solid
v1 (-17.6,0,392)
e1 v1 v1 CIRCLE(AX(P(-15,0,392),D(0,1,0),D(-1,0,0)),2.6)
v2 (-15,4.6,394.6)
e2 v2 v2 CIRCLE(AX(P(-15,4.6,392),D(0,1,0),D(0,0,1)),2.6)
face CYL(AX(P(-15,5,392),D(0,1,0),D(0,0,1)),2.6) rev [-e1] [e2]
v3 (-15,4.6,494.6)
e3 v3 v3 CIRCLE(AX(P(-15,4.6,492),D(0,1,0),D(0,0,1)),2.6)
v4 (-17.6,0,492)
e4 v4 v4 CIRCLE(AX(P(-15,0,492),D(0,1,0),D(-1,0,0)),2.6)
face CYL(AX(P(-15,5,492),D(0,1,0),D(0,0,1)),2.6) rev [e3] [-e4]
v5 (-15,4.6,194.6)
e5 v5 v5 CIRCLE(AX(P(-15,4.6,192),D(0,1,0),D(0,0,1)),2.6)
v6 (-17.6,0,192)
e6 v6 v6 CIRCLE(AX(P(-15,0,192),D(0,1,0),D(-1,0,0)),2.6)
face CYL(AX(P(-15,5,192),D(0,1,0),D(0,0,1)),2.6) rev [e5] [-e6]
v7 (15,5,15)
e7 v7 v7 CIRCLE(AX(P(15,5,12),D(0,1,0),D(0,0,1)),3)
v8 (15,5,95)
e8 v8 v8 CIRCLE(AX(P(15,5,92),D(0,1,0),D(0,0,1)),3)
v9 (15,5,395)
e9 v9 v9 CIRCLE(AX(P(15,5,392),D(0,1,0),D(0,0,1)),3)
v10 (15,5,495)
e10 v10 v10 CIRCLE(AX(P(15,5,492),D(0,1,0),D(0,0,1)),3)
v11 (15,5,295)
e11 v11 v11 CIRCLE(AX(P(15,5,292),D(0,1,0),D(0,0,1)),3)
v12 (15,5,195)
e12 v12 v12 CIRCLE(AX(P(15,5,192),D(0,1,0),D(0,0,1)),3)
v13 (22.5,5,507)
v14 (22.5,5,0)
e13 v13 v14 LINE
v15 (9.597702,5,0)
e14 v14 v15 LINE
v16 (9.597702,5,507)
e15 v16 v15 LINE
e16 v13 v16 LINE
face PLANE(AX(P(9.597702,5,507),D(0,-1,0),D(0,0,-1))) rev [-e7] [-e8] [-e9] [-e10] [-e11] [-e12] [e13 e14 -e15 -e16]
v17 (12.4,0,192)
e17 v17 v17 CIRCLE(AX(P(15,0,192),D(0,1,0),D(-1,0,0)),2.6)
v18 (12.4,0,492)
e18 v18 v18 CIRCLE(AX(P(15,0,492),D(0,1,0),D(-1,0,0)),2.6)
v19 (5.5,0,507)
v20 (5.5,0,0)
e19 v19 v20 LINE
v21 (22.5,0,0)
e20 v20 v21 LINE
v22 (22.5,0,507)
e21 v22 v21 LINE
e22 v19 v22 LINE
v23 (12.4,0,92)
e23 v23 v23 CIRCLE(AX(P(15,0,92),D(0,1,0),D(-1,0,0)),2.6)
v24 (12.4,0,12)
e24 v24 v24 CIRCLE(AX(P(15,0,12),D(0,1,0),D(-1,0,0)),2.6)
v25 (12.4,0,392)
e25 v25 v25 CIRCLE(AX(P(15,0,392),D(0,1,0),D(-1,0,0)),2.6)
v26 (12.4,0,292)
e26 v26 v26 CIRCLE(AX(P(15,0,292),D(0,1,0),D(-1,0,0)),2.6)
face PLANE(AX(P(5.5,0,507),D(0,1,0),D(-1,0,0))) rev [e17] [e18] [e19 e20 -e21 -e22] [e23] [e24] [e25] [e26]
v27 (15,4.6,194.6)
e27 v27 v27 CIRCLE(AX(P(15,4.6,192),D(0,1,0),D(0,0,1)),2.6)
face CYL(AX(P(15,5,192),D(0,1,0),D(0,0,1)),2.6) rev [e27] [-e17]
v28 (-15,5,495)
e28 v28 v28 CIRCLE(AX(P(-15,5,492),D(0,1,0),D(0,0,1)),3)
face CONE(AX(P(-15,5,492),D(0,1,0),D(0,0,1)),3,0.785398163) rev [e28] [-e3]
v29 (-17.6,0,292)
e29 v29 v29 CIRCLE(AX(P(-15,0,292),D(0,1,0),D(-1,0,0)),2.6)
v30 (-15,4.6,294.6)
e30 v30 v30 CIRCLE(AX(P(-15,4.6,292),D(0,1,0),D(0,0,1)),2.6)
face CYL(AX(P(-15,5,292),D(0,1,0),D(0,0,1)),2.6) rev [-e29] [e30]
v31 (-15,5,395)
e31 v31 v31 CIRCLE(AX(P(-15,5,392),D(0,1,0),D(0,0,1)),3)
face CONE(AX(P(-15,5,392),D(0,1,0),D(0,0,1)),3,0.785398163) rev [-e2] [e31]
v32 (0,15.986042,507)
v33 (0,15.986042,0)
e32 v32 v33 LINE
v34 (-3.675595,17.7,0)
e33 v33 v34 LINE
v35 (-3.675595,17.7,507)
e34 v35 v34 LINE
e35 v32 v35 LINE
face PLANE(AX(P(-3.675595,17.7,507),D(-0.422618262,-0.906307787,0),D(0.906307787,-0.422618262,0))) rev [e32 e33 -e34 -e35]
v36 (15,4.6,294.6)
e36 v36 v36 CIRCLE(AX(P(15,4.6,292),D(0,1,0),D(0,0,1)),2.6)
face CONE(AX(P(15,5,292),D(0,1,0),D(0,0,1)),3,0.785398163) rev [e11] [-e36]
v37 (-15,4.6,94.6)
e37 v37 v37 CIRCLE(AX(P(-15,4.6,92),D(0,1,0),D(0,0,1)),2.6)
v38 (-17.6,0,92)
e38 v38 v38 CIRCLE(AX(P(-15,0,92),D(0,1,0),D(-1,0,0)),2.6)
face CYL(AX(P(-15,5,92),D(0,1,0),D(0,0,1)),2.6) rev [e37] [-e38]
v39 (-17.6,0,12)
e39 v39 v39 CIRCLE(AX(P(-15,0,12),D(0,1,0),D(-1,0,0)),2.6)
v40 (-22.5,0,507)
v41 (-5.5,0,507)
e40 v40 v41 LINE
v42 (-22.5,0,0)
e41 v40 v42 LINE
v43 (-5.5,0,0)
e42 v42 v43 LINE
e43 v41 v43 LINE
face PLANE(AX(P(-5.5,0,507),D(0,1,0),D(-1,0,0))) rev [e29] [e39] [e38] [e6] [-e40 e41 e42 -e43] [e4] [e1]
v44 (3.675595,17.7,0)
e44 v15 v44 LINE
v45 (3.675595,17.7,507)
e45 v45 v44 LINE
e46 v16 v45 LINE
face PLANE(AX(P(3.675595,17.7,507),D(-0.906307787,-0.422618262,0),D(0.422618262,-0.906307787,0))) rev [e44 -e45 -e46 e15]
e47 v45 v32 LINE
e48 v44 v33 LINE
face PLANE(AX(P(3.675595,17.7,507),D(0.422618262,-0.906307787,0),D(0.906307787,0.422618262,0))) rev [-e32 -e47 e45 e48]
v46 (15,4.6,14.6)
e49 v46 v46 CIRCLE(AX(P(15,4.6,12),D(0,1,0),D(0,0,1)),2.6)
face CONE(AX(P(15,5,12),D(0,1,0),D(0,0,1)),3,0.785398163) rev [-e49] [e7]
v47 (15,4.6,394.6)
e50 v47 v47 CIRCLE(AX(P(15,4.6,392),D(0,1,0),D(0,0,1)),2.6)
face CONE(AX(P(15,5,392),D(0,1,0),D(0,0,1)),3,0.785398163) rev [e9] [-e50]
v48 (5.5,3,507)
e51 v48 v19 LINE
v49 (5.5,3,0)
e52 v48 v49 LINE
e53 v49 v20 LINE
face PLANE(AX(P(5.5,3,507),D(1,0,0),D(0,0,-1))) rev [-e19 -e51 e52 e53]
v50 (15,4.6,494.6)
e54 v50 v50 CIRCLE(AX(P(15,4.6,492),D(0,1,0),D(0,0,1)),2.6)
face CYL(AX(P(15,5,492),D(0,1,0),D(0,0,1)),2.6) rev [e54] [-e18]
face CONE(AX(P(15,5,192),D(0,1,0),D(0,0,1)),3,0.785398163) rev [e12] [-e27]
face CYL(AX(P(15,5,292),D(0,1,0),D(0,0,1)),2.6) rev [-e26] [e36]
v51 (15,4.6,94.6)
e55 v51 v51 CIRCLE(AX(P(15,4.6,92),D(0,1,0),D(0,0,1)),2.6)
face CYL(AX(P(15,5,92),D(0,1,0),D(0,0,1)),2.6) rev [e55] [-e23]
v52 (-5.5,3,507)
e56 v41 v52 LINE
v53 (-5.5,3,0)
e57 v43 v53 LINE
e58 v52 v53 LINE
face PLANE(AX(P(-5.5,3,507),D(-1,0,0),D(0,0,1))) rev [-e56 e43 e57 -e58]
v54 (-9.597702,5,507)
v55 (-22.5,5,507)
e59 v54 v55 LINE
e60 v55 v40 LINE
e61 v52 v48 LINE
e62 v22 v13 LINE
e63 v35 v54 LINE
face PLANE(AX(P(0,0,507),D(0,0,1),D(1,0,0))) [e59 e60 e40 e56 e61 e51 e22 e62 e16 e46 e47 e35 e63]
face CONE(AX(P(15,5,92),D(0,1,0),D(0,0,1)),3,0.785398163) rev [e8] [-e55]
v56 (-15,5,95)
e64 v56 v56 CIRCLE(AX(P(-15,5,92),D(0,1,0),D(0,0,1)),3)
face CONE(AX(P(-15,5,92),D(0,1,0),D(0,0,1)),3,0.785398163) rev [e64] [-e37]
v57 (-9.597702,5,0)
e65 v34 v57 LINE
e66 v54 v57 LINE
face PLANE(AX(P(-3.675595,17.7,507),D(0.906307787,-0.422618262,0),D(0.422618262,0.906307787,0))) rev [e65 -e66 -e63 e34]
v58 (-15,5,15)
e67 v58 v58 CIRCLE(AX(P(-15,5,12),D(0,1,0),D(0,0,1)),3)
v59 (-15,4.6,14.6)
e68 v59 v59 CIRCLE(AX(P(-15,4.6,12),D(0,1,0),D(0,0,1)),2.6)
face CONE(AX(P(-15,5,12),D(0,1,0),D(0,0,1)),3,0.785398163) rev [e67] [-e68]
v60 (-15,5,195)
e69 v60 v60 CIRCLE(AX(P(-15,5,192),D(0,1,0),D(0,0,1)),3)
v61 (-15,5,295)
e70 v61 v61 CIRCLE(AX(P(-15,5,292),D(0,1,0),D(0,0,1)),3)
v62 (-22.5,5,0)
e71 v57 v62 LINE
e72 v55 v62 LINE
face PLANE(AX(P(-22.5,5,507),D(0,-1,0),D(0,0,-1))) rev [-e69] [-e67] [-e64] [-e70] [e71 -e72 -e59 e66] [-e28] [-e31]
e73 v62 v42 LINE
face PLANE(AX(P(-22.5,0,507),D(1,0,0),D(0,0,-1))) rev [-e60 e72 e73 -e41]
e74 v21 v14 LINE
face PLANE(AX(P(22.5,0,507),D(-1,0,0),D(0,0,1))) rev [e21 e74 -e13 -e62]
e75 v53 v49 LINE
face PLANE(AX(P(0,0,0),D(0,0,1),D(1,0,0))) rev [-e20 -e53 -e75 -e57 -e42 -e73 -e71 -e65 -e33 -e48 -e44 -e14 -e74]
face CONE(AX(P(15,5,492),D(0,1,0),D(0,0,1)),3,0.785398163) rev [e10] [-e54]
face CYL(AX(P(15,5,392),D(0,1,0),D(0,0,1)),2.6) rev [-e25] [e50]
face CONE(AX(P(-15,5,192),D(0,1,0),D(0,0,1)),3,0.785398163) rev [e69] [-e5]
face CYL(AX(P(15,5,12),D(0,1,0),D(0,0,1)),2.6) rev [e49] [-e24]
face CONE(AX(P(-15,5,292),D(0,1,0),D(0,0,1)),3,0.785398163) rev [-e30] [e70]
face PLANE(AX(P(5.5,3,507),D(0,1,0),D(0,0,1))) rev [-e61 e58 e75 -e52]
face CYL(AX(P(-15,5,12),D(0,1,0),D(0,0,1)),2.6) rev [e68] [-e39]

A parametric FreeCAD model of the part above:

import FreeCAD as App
import Part
import Sketcher

V = App.Vector
Q = App.Units.Quantity

doc = App.newDocument("Part")
body = doc.addObject("PartDesign::Body", "Body")

# Sketch on XY plane
sketch1 = body.newObject("Sketcher::SketchObject", "Sketch")
sketch1.AttachmentSupport = (doc.getObject("XY_Plane"), [""])
sketch1.MapMode = "FlatFace"
sketch1.addGeometry(Part.LineSegment(V(-5.5, 3, 0), V(5.5, 3, 0)), False)
sketch1.addGeometry(Part.LineSegment(V(5.5, 3, 0), V(5.5, 0, 0)), False)
sketch1.addGeometry(Part.LineSegment(V(5.5, 0, 0), V(22.5, 0, 0)), False)
sketch1.addGeometry(Part.LineSegment(V(22.5, 0, 0), V(22.5, 5, 0)), False)
sketch1.addGeometry(Part.LineSegment(V(22.5, 5, 0), V(9.6, 5, 0)), False)
sketch1.addGeometry(Part.LineSegment(V(9.6, 5, 0), V(3.7, 17.7, 0)), False)
sketch1.addGeometry(Part.LineSegment(V(3.7, 17.7, 0), V(0, 16, 0)), False)
sketch1.addGeometry(Part.LineSegment(V(0, 16, 0), V(-3.7, 17.7, 0)), False)
sketch1.addGeometry(Part.LineSegment(V(-3.7, 17.7, 0), V(-9.6, 5, 0)), False)
sketch1.addGeometry(Part.LineSegment(V(-9.6, 5, 0), V(-22.5, 5, 0)), False)
sketch1.addGeometry(Part.LineSegment(V(-22.5, 5, 0), V(-22.5, 0, 0)), False)
sketch1.addGeometry(Part.LineSegment(V(-22.5, 0, 0), V(-5.5, 0, 0)), False)
sketch1.addGeometry(Part.LineSegment(V(-5.5, 0, 0), V(-5.5, 3, 0)), False)
sketch1.addConstraint(Sketcher.Constraint("Coincident", 0, 2, 1, 1))
sketch1.addConstraint(Sketcher.Constraint("Coincident", 1, 2, 2, 1))
sketch1.addConstraint(Sketcher.Constraint("Coincident", 2, 2, 3, 1))
sketch1.addConstraint(Sketcher.Constraint("Coincident", 3, 2, 4, 1))
sketch1.addConstraint(Sketcher.Constraint("Coincident", 4, 2, 5, 1))
sketch1.addConstraint(Sketcher.Constraint("Coincident", 5, 2, 6, 1))
sketch1.addConstraint(Sketcher.Constraint("Coincident", 6, 2, 7, 1))
sketch1.addConstraint(Sketcher.Constraint("Coincident", 7, 2, 8, 1))
sketch1.addConstraint(Sketcher.Constraint("Coincident", 8, 2, 9, 1))
sketch1.addConstraint(Sketcher.Constraint("Coincident", 9, 2, 10, 1))
sketch1.addConstraint(Sketcher.Constraint("Coincident", 10, 2, 11, 1))
sketch1.addConstraint(Sketcher.Constraint("Coincident", 11, 2, 12, 1))
sketch1.addConstraint(Sketcher.Constraint("Coincident", 12, 2, 0, 1))
sketch1.addConstraint(Sketcher.Constraint("Horizontal", 0))
sketch1.addConstraint(Sketcher.Constraint("Vertical", 1))
sketch1.addConstraint(Sketcher.Constraint("Horizontal", 2))
sketch1.addConstraint(Sketcher.Constraint("Vertical", 3))
sketch1.addConstraint(Sketcher.Constraint("Horizontal", 4))
sketch1.addConstraint(Sketcher.Constraint("Horizontal", 9))
sketch1.addConstraint(Sketcher.Constraint("Vertical", 10))
sketch1.addConstraint(Sketcher.Constraint("Horizontal", 11))
sketch1.addConstraint(Sketcher.Constraint("Vertical", 12))
sketch1.addConstraint(Sketcher.Constraint("Symmetric", 2, 2, 10, 2, -1, 1))
sketch1.addConstraint(Sketcher.Constraint("Symmetric", 5, 2, 7, 2, -2))
sketch1.addConstraint(Sketcher.Constraint("Symmetric", 4, 2, 8, 2, -2))
sketch1.addConstraint(Sketcher.Constraint("Symmetric", 1, 2, 11, 2, -2))
sketch1.addConstraint(Sketcher.Constraint("PointOnObject", 6, 2, -2))
sketch1.addConstraint(Sketcher.Constraint("Perpendicular", 5, 6))
sketch1.addConstraint(Sketcher.Constraint("DistanceX", 0, 1, 0, 2, 11.0))
sketch1.addConstraint(Sketcher.Constraint("DistanceX", 2, 1, 2, 2, 17.0))
sketch1.addConstraint(Sketcher.Constraint("DistanceY", 1, 2, 1, 1, 3.0))
sketch1.addConstraint(Sketcher.Constraint("DistanceY", 3, 1, 3, 2, 5.0))
sketch1.addConstraint(Sketcher.Constraint("Angle", 5, Q("115 deg")))
sketch1.addConstraint(Sketcher.Constraint("DistanceY", -1, 1, 5, 2, 17.7))
sketch1.addConstraint(Sketcher.Constraint("Distance", 6, 4.055571))
pad1 = body.newObject("PartDesign::Pad", "Pad")
pad1.Profile = sketch1
pad1.Length = 507

# Sketch on XZ plane
sketch2 = body.newObject("Sketcher::SketchObject", "Sketch001")
sketch2.AttachmentSupport = (doc.getObject("XZ_Plane"), [""])
sketch2.MapMode = "FlatFace"
sketch2.AttachmentOffset = App.Placement(V(0, 0, -5), App.Rotation())
sketch2.addGeometry(Part.Circle(V(-15, 12, 0), V(0, 0, 1), 2.6), False)
sketch2.addGeometry(Part.Circle(V(15, 12, 0), V(0, 0, 1), 2.6), False)
sketch2.addGeometry(Part.Circle(V(-15, 92, 0), V(0, 0, 1), 2.6), False)
sketch2.addGeometry(Part.Circle(V(15, 92, 0), V(0, 0, 1), 2.6), False)
sketch2.addGeometry(Part.Circle(V(-15, 192, 0), V(0, 0, 1), 2.6), False)
sketch2.addGeometry(Part.Circle(V(15, 192, 0), V(0, 0, 1), 2.6), False)
sketch2.addGeometry(Part.Circle(V(-15, 292, 0), V(0, 0, 1), 2.6), False)
sketch2.addGeometry(Part.Circle(V(15, 292, 0), V(0, 0, 1), 2.6), False)
sketch2.addGeometry(Part.Circle(V(-15, 392, 0), V(0, 0, 1), 2.6), False)
sketch2.addGeometry(Part.Circle(V(15, 392, 0), V(0, 0, 1), 2.6), False)
sketch2.addGeometry(Part.Circle(V(-15, 492, 0), V(0, 0, 1), 2.6), False)
sketch2.addGeometry(Part.Circle(V(15, 492, 0), V(0, 0, 1), 2.6), False)
sketch2.addConstraint(Sketcher.Constraint("Equal", 0, 1))
sketch2.addConstraint(Sketcher.Constraint("Equal", 1, 2))
sketch2.addConstraint(Sketcher.Constraint("Equal", 2, 3))
sketch2.addConstraint(Sketcher.Constraint("Equal", 3, 4))
sketch2.addConstraint(Sketcher.Constraint("Equal", 4, 5))
sketch2.addConstraint(Sketcher.Constraint("Equal", 5, 6))
sketch2.addConstraint(Sketcher.Constraint("Equal", 6, 7))
sketch2.addConstraint(Sketcher.Constraint("Equal", 7, 8))
sketch2.addConstraint(Sketcher.Constraint("Equal", 8, 9))
sketch2.addConstraint(Sketcher.Constraint("Equal", 9, 10))
sketch2.addConstraint(Sketcher.Constraint("Equal", 10, 11))
sketch2.addConstraint(Sketcher.Constraint("Symmetric", 0, 3, 1, 3, -2))
sketch2.addConstraint(Sketcher.Constraint("Symmetric", 2, 3, 3, 3, -2))
sketch2.addConstraint(Sketcher.Constraint("Symmetric", 4, 3, 5, 3, -2))
sketch2.addConstraint(Sketcher.Constraint("Symmetric", 6, 3, 7, 3, -2))
sketch2.addConstraint(Sketcher.Constraint("Symmetric", 8, 3, 9, 3, -2))
sketch2.addConstraint(Sketcher.Constraint("Symmetric", 10, 3, 11, 3, -2))
sketch2.addConstraint(Sketcher.Constraint("Vertical", 0, 3, 2, 3))
sketch2.addConstraint(Sketcher.Constraint("Vertical", 2, 3, 4, 3))
sketch2.addConstraint(Sketcher.Constraint("Vertical", 4, 3, 6, 3))
sketch2.addConstraint(Sketcher.Constraint("Vertical", 6, 3, 8, 3))
sketch2.addConstraint(Sketcher.Constraint("Vertical", 8, 3, 10, 3))
sketch2.addConstraint(Sketcher.Constraint("Diameter", 0, 5.2))
sketch2.addConstraint(Sketcher.Constraint("DistanceX", 0, 3, -1, 1, 15.0))
sketch2.addConstraint(Sketcher.Constraint("DistanceY", -1, 1, 0, 3, 12.0))
sketch2.addConstraint(Sketcher.Constraint("DistanceY", -1, 1, 2, 3, 92.0))
sketch2.addConstraint(Sketcher.Constraint("DistanceY", -1, 1, 4, 3, 192.0))
sketch2.addConstraint(Sketcher.Constraint("DistanceY", -1, 1, 6, 3, 292.0))
sketch2.addConstraint(Sketcher.Constraint("DistanceY", -1, 1, 8, 3, 392.0))
sketch2.addConstraint(Sketcher.Constraint("DistanceY", -1, 1, 10, 3, 492.0))
doc.recompute()
hole = body.newObject("PartDesign::Hole", "Hole")
hole.Profile = sketch2
hole.ThreadType = "None"
hole.Diameter = 5.2
hole.DepthType = "Dimension"
hole.Depth = 46
hole.DrillPoint = "Angled"
hole.DrillPointAngle = 118
hole.HoleCutType = "Countersink"
hole.HoleCutDiameter = 6
hole.HoleCutCountersinkAngle = 90
hole.Reversed = True

doc.recompute()
